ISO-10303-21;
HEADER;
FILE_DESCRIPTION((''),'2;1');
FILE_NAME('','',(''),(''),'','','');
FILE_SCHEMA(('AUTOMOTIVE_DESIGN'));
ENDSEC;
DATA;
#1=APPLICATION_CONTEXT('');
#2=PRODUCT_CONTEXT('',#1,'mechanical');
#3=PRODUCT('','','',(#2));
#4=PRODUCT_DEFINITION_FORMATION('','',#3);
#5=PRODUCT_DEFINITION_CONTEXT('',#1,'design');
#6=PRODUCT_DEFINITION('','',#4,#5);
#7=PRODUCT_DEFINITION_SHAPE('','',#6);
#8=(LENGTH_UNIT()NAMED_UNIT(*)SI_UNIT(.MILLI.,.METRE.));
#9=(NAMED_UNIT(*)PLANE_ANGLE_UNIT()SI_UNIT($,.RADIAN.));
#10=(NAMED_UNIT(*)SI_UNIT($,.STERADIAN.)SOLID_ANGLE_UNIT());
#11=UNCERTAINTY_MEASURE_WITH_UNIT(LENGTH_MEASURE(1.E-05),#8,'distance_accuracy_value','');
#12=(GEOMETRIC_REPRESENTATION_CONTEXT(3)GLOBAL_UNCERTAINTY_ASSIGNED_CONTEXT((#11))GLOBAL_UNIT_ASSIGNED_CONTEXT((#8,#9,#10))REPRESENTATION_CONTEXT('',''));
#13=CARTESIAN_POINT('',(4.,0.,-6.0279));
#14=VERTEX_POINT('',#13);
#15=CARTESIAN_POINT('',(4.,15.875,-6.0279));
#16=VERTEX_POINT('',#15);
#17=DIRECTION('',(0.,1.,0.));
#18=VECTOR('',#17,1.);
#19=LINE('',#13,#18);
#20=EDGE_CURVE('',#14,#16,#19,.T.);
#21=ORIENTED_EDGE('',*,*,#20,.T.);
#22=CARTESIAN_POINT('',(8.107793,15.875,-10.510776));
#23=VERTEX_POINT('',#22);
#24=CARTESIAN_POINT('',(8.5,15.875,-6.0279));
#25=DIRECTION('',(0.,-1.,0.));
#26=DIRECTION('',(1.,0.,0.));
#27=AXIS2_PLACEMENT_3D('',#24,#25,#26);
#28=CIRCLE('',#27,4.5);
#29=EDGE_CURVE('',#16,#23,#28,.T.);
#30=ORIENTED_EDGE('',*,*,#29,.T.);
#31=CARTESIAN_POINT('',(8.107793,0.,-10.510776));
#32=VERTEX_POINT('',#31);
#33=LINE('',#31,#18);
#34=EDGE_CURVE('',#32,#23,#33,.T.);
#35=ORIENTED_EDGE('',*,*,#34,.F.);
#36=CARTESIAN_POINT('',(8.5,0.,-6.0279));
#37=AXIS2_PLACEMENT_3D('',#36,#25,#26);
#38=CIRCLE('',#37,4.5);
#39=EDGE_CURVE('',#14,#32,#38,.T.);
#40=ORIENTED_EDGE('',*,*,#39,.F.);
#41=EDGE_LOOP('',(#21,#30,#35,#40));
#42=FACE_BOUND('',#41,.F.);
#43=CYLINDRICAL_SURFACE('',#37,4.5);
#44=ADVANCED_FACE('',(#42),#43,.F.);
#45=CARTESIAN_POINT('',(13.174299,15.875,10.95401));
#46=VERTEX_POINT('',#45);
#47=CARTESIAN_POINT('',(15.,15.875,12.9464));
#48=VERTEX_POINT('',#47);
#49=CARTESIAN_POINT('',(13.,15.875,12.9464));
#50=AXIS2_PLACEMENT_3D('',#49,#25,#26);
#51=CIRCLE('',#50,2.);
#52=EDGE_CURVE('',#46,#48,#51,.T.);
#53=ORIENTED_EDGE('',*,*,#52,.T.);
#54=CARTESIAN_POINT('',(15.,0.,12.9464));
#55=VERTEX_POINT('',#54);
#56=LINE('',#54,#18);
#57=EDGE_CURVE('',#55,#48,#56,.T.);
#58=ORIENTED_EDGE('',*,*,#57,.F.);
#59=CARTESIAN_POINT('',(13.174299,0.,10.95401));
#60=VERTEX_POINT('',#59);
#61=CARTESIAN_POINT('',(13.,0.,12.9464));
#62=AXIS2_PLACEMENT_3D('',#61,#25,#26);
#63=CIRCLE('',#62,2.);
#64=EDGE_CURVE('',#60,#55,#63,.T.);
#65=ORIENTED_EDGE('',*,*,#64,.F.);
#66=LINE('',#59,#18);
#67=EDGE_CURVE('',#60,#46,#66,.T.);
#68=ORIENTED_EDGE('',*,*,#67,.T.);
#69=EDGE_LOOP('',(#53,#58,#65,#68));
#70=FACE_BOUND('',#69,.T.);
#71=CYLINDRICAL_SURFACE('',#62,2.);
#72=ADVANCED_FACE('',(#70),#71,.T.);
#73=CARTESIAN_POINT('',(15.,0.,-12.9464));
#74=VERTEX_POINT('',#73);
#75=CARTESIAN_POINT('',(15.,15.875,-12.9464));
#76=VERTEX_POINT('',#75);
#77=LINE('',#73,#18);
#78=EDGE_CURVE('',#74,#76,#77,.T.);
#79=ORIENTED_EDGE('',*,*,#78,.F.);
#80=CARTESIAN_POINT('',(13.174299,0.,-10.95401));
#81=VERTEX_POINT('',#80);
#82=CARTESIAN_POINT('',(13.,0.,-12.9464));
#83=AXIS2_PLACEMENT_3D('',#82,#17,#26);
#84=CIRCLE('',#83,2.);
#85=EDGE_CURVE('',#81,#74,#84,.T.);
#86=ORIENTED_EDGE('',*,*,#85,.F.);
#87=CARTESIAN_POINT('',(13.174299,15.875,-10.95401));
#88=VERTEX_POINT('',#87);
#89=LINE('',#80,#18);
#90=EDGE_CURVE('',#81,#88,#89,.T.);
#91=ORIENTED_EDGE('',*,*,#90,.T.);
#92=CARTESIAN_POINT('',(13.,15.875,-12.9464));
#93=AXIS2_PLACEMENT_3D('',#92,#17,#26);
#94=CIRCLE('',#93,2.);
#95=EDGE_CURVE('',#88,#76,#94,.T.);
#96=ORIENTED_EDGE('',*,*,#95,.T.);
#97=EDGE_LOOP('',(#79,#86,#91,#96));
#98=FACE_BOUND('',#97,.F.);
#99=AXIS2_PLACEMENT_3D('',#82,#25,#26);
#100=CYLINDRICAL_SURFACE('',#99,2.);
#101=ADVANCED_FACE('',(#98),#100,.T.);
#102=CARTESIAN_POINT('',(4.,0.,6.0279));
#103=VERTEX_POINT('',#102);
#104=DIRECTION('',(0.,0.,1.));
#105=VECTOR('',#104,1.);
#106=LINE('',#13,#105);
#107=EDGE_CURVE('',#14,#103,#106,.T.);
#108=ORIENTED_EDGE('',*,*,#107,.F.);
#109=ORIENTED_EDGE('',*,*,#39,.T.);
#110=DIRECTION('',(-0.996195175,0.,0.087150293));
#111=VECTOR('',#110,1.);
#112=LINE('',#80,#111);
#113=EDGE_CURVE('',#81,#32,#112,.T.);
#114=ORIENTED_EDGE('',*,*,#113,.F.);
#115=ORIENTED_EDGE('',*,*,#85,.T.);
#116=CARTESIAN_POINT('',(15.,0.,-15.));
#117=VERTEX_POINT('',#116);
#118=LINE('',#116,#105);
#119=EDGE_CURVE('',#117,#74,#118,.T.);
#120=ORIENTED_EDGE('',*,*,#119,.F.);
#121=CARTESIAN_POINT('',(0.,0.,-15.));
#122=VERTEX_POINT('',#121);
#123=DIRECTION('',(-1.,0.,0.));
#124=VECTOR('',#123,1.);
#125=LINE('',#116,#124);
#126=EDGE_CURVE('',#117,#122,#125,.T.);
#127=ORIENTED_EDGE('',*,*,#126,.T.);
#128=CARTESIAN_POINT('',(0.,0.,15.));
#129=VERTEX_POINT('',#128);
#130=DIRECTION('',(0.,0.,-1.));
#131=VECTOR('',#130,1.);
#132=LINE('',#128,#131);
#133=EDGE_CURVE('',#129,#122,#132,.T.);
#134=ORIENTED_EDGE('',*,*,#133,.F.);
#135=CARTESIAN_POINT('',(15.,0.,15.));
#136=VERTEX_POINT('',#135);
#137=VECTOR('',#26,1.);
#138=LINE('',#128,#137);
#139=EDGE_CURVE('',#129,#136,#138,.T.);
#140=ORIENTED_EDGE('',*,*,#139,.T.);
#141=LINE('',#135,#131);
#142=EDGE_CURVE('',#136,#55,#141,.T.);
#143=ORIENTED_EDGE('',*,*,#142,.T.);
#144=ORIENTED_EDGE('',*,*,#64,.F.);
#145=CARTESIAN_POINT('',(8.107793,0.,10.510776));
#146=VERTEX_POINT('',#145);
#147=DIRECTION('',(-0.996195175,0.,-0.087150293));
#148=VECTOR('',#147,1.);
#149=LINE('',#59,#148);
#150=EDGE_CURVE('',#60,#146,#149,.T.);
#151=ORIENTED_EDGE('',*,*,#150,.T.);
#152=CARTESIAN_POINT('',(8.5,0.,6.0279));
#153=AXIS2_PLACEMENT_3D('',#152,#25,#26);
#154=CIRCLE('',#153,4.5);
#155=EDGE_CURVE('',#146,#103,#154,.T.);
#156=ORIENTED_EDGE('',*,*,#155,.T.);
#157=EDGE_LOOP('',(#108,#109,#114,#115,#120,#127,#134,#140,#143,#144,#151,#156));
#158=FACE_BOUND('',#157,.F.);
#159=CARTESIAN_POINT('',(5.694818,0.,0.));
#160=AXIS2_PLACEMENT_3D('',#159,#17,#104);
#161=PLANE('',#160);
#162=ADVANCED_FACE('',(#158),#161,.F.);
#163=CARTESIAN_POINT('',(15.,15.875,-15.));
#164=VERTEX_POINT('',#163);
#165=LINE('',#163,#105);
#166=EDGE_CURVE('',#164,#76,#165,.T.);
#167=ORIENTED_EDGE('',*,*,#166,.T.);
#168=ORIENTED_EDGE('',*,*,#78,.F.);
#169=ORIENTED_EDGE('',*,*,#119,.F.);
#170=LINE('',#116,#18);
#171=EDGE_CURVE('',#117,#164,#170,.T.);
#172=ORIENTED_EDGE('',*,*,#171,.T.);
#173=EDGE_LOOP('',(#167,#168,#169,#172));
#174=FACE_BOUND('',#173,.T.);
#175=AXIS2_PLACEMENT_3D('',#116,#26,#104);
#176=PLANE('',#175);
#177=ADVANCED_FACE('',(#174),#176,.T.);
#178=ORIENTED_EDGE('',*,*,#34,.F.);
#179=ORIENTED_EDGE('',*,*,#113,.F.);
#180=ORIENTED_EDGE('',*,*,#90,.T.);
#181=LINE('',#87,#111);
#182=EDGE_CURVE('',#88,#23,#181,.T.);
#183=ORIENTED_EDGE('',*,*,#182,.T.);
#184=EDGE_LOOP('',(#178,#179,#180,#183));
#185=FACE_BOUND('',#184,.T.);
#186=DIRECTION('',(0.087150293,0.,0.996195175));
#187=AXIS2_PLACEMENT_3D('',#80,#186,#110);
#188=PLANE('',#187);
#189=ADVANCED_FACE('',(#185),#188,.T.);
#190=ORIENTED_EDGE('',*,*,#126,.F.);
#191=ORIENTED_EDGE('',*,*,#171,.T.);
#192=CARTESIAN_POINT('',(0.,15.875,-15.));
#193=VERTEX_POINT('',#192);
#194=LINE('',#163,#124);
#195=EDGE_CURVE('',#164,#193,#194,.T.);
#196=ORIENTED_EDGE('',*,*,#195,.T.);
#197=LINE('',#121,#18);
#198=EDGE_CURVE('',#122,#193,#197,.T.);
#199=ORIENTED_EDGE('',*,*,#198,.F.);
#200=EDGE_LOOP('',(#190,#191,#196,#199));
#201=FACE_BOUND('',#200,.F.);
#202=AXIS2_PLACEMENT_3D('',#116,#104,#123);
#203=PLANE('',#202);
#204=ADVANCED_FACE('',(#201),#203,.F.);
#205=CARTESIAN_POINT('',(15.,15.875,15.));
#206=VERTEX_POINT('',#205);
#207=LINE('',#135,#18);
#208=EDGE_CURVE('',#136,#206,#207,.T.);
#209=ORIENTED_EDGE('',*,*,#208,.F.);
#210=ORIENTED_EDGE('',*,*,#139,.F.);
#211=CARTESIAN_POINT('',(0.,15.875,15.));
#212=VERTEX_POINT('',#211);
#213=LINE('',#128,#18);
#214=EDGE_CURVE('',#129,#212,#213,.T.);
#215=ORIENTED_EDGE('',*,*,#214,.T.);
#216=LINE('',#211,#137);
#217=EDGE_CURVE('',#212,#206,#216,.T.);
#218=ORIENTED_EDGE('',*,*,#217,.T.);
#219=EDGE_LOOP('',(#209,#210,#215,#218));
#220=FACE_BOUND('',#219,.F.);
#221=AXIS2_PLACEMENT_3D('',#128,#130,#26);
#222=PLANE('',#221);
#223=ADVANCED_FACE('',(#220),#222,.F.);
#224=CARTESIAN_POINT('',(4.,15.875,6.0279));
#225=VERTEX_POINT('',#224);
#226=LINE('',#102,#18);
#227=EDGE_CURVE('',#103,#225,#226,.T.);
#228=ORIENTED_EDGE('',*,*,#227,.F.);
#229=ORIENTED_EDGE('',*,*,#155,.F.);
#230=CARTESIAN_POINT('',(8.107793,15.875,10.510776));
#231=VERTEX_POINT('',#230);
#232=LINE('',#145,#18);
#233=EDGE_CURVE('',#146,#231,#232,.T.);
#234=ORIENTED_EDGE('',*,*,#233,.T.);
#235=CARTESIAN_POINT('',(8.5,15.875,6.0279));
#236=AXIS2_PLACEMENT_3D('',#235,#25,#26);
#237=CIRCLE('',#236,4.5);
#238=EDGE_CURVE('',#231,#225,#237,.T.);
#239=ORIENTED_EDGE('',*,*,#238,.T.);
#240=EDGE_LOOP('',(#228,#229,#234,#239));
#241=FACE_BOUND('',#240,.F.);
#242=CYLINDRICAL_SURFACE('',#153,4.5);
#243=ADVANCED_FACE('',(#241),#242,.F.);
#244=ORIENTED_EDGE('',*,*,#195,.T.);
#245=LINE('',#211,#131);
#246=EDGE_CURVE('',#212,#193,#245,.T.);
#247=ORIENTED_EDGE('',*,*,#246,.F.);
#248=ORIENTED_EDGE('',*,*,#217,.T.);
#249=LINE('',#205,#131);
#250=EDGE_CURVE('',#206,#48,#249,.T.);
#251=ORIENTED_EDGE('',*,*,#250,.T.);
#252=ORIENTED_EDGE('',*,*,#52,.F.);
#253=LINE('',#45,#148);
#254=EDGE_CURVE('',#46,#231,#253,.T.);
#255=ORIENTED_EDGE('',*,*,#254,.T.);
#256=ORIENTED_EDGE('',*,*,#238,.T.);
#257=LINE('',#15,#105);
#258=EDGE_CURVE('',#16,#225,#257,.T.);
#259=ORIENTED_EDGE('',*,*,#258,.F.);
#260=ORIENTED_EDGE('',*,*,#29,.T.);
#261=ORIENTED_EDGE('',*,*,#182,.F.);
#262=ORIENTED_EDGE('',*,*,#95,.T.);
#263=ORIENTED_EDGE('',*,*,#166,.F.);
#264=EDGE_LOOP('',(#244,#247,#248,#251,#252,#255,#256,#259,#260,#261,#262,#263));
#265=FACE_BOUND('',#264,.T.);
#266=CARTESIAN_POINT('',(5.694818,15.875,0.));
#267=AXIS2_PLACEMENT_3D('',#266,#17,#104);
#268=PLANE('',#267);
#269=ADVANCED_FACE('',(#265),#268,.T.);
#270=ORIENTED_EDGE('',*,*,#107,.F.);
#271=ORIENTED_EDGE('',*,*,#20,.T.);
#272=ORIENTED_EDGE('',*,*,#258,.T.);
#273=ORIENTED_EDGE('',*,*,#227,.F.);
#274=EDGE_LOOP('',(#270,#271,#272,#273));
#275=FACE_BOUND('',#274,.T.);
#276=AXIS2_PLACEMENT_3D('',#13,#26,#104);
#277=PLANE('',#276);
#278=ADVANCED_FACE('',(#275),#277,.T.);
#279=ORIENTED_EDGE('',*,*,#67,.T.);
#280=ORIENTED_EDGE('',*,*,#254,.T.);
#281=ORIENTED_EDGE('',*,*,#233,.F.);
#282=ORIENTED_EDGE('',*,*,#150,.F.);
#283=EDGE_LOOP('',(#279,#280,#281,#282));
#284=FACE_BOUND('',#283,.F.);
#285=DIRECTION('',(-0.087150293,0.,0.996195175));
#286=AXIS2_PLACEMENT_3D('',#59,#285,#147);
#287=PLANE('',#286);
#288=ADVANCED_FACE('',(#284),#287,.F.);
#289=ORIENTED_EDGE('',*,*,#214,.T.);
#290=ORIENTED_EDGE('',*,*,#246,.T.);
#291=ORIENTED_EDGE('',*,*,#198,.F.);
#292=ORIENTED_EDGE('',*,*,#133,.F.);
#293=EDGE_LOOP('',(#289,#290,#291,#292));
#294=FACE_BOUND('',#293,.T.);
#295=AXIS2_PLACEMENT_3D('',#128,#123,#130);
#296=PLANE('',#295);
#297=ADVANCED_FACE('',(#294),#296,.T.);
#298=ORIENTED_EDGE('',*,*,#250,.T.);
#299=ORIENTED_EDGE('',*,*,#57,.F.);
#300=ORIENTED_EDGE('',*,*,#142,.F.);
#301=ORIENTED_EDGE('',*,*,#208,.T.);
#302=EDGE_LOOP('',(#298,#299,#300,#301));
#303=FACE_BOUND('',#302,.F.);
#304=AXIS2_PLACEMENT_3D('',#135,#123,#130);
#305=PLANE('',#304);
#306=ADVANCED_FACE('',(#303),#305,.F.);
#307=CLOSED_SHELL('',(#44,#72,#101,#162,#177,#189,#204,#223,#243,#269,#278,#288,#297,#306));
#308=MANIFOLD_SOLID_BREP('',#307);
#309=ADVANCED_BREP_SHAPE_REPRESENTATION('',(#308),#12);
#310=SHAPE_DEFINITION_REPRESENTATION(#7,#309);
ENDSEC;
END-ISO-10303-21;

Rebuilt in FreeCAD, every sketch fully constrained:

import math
import FreeCAD as App
import Part
import Sketcher

V = App.Vector
Q = App.Units.Quantity

doc = App.newDocument("Part")
body = doc.addObject("PartDesign::Body", "Body")

# Sketch on XZ plane
sketch1 = body.newObject("Sketcher::SketchObject", "Sketch")
sketch1.AttachmentSupport = (doc.getObject("XZ_Plane"), [""])
sketch1.MapMode = "FlatFace"
sketch1.addGeometry([
    Part.LineSegment(V(0, -15, 0), V(15, -15, 0)),  # 0
    Part.LineSegment(V(15, -15, 0), V(15, -12.9, 0)),  # 1
    Part.ArcOfCircle(Part.Circle(V(13, -12.9, 0), V(0, 0, 1), 2), math.radians(0), math.radians(85)),  # 2
    Part.LineSegment(V(13.2, -11, 0), V(8.1, -10.5, 0)),  # 3
    Part.ArcOfCircle(Part.Circle(V(8.5, -6, 0), V(0, 0, 1), 4.5), math.radians(180), math.radians(265)),  # 4
    Part.LineSegment(V(4, -6, 0), V(4, 6, 0)),  # 5
    Part.ArcOfCircle(Part.Circle(V(8.5, 6, 0), V(0, 0, 1), 4.5), math.radians(95), math.radians(180)),  # 6
    Part.LineSegment(V(8.1, 10.5, 0), V(13.2, 11, 0)),  # 7
    Part.ArcOfCircle(Part.Circle(V(13, 12.9, 0), V(0, 0, 1), 2), math.radians(-85), math.radians(0)),  # 8
    Part.LineSegment(V(15, 12.9, 0), V(15, 15, 0)),  # 9
    Part.LineSegment(V(15, 15, 0), V(0, 15, 0)),  # 10
    Part.LineSegment(V(0, 15, 0), V(0, -15, 0)),  # 11
], False)
sketch1.addConstraint([
    Sketcher.Constraint("Coincident", 0, 2, 1, 1),
    Sketcher.Constraint("Tangent", 1, 2, 2, 1),
    Sketcher.Constraint("Tangent", 2, 2, 3, 1),
    Sketcher.Constraint("Tangent", 3, 2, 4, 2),
    Sketcher.Constraint("Tangent", 4, 1, 5, 1),
    Sketcher.Constraint("Tangent", 5, 2, 6, 2),
    Sketcher.Constraint("Tangent", 6, 1, 7, 1),
    Sketcher.Constraint("Tangent", 7, 2, 8, 1),
    Sketcher.Constraint("Tangent", 8, 2, 9, 1),
    Sketcher.Constraint("Coincident", 9, 2, 10, 1),
    Sketcher.Constraint("Coincident", 10, 2, 11, 1),
    Sketcher.Constraint("Coincident", 11, 2, 0, 1),
    Sketcher.Constraint("Horizontal", 0),
    Sketcher.Constraint("Vertical", 1),
    Sketcher.Constraint("Vertical", 5),
    Sketcher.Constraint("Vertical", 9),
    Sketcher.Constraint("Horizontal", 10),
    Sketcher.Constraint("Vertical", 11),
    Sketcher.Constraint("Equal", 4, 6),
    Sketcher.Constraint("Equal", 2, 8),
    Sketcher.Constraint("Symmetric", 10, 2, 11, 2, -1, 1),
    Sketcher.Constraint("Symmetric", 2, 3, 8, 3, -1),
    Sketcher.Constraint("Vertical", 3, 2, 6, 1),
    Sketcher.Constraint("DistanceX", 0, 1, 0, 2, 15.0),
    Sketcher.Constraint("DistanceY", 0, 2, -1, 1, 15.0),
    Sketcher.Constraint("Radius", 2, 2.0),
    Sketcher.Constraint("Radius", 4, 4.5),
    Sketcher.Constraint("Angle", 3, Q("174.9996 deg")),
    Sketcher.Constraint("DistanceX", -1, 1, 4, 1, 4.0),
    Sketcher.Constraint("DistanceY", 1, 1, 1, 2, 2.0536),
])
pad1 = body.newObject("PartDesign::Pad", "Pad")
pad1.Profile = sketch1
pad1.Length = 15.875
pad1.Reversed = True

doc.recompute()
